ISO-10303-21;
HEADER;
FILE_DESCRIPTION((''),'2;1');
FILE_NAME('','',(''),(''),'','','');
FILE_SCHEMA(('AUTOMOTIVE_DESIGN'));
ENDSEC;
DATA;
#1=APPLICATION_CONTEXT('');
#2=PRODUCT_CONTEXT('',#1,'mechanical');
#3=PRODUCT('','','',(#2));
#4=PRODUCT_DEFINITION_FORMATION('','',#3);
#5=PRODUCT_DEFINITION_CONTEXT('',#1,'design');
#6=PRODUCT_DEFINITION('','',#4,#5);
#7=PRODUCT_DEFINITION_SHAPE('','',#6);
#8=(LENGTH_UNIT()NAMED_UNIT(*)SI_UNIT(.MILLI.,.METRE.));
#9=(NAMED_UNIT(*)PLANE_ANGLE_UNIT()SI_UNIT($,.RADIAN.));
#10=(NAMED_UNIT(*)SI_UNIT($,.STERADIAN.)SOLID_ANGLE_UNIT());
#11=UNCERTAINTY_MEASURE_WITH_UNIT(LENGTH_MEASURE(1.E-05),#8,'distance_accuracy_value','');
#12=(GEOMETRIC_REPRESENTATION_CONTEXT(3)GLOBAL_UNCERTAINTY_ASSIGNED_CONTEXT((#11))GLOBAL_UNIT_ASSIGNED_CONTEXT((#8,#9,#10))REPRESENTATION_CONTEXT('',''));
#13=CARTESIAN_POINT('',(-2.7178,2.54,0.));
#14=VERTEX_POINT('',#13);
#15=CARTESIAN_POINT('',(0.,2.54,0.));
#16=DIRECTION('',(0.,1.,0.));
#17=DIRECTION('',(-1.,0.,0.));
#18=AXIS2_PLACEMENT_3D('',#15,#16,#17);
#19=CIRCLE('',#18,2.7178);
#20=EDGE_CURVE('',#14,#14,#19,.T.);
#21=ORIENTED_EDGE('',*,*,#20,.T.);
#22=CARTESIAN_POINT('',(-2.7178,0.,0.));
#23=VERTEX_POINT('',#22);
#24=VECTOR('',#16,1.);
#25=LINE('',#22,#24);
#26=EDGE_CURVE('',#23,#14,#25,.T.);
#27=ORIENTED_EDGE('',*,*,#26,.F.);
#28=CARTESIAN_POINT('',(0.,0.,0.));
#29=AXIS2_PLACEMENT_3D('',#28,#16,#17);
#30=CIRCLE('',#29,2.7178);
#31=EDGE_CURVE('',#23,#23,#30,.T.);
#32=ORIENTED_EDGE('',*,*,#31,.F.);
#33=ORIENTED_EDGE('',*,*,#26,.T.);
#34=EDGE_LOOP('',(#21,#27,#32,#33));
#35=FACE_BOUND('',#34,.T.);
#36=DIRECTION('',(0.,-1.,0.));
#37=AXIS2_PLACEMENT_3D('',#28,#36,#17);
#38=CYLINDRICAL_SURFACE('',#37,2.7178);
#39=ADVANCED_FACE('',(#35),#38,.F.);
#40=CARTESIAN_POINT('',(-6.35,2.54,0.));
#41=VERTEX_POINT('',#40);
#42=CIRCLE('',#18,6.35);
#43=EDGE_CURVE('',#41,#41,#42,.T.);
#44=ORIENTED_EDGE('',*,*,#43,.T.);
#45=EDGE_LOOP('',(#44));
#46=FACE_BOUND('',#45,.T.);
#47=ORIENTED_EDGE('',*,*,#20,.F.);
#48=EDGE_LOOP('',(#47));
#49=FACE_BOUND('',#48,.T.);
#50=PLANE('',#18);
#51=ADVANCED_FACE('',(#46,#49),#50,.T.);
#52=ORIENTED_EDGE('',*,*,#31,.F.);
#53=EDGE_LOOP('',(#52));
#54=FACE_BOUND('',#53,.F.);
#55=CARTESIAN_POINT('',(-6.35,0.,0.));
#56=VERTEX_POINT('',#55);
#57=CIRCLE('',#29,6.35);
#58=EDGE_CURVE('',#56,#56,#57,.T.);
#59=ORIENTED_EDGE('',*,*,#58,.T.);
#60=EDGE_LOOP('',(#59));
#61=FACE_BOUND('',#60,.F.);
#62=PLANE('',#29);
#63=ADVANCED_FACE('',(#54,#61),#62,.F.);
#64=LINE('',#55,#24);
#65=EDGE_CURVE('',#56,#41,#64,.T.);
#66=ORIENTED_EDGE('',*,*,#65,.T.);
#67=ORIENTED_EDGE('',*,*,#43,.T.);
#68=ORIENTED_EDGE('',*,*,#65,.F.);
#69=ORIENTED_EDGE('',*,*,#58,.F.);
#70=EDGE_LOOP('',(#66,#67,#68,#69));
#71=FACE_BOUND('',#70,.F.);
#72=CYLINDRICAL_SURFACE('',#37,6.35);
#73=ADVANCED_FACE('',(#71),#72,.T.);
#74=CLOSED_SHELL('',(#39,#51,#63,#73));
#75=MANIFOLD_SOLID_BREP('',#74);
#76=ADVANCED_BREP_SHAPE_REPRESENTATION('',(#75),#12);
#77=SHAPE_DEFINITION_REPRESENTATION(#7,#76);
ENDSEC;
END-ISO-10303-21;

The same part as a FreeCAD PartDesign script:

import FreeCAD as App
import Part
import Sketcher
Q = App.Units.Quantity

doc = App.newDocument("Part")
body = doc.addObject("PartDesign::Body", "Body")

# Sketch on XZ plane
sketch1 = body.newObject("Sketcher::SketchObject", "Sketch")
sketch1.AttachmentSupport = (doc.getObject("XZ_Plane"), [""])
sketch1.MapMode = "FlatFace"
sketch1.addGeometry([
    Part.Circle(App.Vector(0, 0, 0), App.Vector(0, 0, 1), 6.3),
    Part.Circle(App.Vector(0, 0, 0), App.Vector(0, 0, 1), 2.7),
], False)
sketch1.addConstraint([
    Sketcher.Constraint("Coincident", 0, 3, -1, 1),
    Sketcher.Constraint("Coincident", 1, 3, -1, 1),
    Sketcher.Constraint("Diameter", 0, Q("0.5 in")),
    Sketcher.Constraint("Diameter", 1, Q("0.214 in")),
])
pad1 = body.newObject("PartDesign::Pad", "Pad")
pad1.Profile = sketch1
pad1.Length = Q("0.1 in")
pad1.Reversed = True

doc.recompute()
